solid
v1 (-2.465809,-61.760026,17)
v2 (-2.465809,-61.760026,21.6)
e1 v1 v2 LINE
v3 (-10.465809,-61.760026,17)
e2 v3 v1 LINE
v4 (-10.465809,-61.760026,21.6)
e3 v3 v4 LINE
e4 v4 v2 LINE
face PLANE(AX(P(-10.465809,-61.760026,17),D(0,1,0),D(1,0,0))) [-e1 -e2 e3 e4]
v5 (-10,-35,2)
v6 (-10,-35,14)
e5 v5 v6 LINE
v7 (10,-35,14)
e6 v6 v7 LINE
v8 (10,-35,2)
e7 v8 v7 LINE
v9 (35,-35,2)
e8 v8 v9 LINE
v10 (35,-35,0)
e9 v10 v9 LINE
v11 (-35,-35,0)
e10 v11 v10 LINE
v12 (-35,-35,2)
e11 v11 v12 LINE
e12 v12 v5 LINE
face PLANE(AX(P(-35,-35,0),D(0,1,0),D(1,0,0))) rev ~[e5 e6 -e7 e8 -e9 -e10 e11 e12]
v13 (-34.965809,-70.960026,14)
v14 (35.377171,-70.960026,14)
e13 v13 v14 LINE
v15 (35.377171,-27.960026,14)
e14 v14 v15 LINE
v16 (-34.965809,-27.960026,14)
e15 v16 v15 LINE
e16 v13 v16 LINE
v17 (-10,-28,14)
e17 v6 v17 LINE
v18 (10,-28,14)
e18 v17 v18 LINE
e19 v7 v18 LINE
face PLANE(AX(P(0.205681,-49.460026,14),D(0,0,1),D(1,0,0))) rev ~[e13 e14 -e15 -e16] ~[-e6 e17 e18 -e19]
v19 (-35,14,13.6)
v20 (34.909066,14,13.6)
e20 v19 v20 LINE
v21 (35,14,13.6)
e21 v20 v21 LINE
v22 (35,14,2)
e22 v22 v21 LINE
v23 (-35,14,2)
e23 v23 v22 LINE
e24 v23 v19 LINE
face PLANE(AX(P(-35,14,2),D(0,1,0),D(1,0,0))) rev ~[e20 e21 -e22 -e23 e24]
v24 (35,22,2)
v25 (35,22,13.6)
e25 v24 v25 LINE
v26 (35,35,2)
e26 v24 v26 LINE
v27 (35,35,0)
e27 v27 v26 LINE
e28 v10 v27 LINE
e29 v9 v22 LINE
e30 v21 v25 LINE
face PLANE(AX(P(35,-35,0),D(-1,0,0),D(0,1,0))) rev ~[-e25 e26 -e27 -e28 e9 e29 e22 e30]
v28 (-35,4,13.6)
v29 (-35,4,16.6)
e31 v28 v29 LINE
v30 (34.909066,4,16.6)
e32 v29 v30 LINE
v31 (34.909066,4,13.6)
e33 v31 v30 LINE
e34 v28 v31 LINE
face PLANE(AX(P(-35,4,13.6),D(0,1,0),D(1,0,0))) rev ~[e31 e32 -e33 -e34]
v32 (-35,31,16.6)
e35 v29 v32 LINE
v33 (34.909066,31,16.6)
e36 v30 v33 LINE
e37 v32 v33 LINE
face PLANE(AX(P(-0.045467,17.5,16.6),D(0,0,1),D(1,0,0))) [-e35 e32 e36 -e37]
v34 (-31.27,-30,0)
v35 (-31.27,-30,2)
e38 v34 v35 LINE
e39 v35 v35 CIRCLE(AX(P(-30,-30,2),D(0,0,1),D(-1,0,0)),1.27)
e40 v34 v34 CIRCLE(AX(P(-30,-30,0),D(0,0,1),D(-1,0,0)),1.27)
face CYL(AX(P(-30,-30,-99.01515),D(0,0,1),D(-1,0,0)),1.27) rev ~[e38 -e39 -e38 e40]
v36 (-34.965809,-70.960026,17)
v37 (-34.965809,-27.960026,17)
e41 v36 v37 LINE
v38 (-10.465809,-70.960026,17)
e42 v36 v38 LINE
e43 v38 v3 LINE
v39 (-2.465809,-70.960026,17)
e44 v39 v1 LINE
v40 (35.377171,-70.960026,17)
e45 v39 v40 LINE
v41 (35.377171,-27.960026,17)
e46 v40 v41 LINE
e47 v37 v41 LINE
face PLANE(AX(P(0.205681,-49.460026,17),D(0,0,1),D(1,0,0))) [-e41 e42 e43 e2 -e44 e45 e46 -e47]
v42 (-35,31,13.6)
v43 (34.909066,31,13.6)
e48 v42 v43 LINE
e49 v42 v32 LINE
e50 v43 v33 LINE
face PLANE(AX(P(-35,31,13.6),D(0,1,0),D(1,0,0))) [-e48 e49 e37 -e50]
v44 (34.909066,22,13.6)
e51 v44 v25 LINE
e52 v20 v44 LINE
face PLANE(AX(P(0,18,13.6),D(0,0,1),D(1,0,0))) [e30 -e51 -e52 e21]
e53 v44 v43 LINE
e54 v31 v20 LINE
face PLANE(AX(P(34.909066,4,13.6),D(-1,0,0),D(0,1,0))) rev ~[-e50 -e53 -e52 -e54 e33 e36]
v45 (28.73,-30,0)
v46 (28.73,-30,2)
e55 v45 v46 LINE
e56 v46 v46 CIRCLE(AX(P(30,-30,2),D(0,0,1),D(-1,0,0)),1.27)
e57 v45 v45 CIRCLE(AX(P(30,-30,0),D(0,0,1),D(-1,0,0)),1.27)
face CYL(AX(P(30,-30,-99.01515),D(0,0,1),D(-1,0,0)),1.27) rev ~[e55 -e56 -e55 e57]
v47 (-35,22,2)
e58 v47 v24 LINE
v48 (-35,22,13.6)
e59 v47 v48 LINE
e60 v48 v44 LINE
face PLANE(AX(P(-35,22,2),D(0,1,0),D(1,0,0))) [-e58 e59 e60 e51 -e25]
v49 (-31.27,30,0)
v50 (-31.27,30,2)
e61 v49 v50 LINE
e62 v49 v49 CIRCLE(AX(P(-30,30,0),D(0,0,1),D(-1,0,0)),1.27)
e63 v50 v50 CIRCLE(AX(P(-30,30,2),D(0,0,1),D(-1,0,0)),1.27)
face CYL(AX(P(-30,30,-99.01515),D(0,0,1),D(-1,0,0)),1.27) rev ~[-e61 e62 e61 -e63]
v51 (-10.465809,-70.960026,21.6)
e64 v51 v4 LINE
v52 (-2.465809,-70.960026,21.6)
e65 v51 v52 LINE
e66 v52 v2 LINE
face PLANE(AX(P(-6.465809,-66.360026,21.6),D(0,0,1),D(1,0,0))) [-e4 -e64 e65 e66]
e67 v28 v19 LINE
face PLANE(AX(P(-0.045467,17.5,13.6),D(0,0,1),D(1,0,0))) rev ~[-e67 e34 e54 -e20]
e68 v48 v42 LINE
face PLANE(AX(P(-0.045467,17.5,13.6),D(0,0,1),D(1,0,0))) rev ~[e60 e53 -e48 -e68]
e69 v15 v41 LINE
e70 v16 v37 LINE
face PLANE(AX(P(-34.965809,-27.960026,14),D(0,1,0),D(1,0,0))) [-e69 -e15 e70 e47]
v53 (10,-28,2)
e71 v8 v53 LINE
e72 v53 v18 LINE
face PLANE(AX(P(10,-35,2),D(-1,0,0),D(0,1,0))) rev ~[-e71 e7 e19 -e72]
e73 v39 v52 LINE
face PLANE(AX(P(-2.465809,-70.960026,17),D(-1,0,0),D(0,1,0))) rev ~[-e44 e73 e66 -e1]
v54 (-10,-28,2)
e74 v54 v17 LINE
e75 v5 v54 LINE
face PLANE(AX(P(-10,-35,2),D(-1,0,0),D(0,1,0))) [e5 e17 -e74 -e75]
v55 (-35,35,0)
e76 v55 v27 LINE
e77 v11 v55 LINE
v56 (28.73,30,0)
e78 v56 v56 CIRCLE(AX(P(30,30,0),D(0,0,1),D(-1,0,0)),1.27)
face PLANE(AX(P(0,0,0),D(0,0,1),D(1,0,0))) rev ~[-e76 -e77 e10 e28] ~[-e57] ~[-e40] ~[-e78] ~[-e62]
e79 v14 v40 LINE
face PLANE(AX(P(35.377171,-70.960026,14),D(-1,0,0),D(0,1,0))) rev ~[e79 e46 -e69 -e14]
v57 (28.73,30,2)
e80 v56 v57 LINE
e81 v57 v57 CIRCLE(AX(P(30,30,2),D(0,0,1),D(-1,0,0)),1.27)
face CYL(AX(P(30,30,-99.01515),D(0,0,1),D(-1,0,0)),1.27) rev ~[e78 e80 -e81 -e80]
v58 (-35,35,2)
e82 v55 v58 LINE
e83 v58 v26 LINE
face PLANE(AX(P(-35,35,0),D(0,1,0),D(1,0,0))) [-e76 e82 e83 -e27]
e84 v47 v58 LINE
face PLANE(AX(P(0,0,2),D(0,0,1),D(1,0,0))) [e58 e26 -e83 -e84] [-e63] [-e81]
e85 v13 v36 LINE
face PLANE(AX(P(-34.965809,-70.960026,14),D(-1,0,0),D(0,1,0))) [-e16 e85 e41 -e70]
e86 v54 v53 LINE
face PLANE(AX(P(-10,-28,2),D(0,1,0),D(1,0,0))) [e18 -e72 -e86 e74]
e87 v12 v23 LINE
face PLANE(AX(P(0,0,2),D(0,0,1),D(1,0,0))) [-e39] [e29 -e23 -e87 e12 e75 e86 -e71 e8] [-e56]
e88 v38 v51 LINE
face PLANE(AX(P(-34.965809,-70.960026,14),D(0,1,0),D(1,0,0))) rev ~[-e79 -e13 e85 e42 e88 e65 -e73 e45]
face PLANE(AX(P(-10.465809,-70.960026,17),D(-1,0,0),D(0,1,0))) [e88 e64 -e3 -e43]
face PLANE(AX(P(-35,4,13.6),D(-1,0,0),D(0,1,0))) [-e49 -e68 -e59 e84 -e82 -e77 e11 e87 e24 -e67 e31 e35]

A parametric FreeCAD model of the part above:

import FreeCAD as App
import Part
import Sketcher
Q = App.Units.Quantity

doc = App.newDocument("Part")
params = doc.addObject("Spreadsheet::Sheet", "Params")
for row, (alias, value) in enumerate([
    ("sketch1_width", "70 mm"),
    ("pad1_length", "2 mm"),
    ("sketch2_diameter", "2.54 mm"),
    ("hole_diameter", "2.54 mm"),
    ("sketch3_width", "70 mm"),
    ("sketch3_height", "8 mm"),
    ("pad2_length", "11.6 mm"),
    ("sketch4_height", "27 mm"),
    ("pad3_length", "3 mm"),
    ("sketch5_width", "20 mm"),
    ("sketch5_height", "7 mm"),
    ("pad4_length", "12 mm"),
    ("sketch6_height", "43 mm"),
    ("pad5_length", "3 mm"),
    ("sketch7_width", "8 mm"),
    ("sketch7_height", "9.2 mm"),
    ("pad6_length", "4.6 mm"),
], start=1):
    params.set(f"A{row}", alias)
    params.set(f"B{row}", "=" + value)
    params.setAlias(f"B{row}", alias)

body = doc.addObject("PartDesign::Body", "Body")

sketch1 = body.newObject("Sketcher::SketchObject", "Sketch")
sketch1.AttachmentSupport = (doc.getObject("XY_Plane"), [""])
sketch1.MapMode = "FlatFace"
sketch1.addGeometry([
    Part.LineSegment(App.Vector(-35, 35, 0), App.Vector(-35, -35, 0)),
    Part.LineSegment(App.Vector(-35, -35, 0), App.Vector(35, -35, 0)),
    Part.LineSegment(App.Vector(35, -35, 0), App.Vector(35, 35, 0)),
    Part.LineSegment(App.Vector(35, 35, 0), App.Vector(-35, 35, 0)),
], False)
sketch1.addConstraint([
    Sketcher.Constraint("Coincident", 0, 2, 1, 1),
    Sketcher.Constraint("Coincident", 1, 2, 2, 1),
    Sketcher.Constraint("Coincident", 2, 2, 3, 1),
    Sketcher.Constraint("Coincident", 3, 2, 0, 1),
    Sketcher.Constraint("Vertical", 0),
    Sketcher.Constraint("Horizontal", 1),
    Sketcher.Constraint("Vertical", 2),
    Sketcher.Constraint("Horizontal", 3),
    Sketcher.Constraint("Symmetric", 0, 2, 2, 2, -1, 1),
    Sketcher.Constraint("Equal", 3, 0),
    Sketcher.Constraint("DistanceX", 1, 1, 1, 2, Q("70 mm")),
])
sketch1.setExpression("Constraints[10]", "Params.sketch1_width")
pad1 = body.newObject("PartDesign::Pad", "Pad")
pad1.Profile = sketch1
pad1.setExpression("Length", "Params.pad1_length")

sketch2 = body.newObject("Sketcher::SketchObject", "Sketch001")
sketch2.AttachmentSupport = (doc.getObject("XY_Plane"), [""])
sketch2.MapMode = "FlatFace"
sketch2.addGeometry([
    Part.Circle(App.Vector(-30, -30, 0), App.Vector(0, 0, 1), 1.3),
    Part.Circle(App.Vector(30, -30, 0), App.Vector(0, 0, 1), 1.3),
    Part.Circle(App.Vector(-30, 30, 0), App.Vector(0, 0, 1), 1.3),
    Part.Circle(App.Vector(30, 30, 0), App.Vector(0, 0, 1), 1.3),
], False)
sketch2.addConstraint([
    Sketcher.Constraint("Equal", 0, 1),
    Sketcher.Constraint("Equal", 1, 2),
    Sketcher.Constraint("Equal", 2, 3),
    Sketcher.Constraint("Symmetric", 1, 3, 2, 3, -1, 1),
    Sketcher.Constraint("Symmetric", 0, 3, 3, 3, -1, 1),
    Sketcher.Constraint("Symmetric", 0, 3, 1, 3, -2),
    Sketcher.Constraint("Diameter", 0, Q("2.54 mm")),
    Sketcher.Constraint("DistanceX", 0, 3, -1, 1, Q("30 mm")),
    Sketcher.Constraint("DistanceY", 0, 3, -1, 1, Q("30 mm")),
])
sketch2.setExpression("Constraints[6]", "Params.sketch2_diameter")
doc.recompute()
hole = body.newObject("PartDesign::Hole", "Hole")
hole.Profile = sketch2
hole.ThreadType = "None"
hole.setExpression("Diameter", "Params.hole_diameter")
hole.DepthType = "ThroughAll"
hole.Reversed = True

sketch3 = body.newObject("Sketcher::SketchObject", "Sketch002")
sketch3.AttachmentSupport = (doc.getObject("XY_Plane"), [""])
sketch3.MapMode = "FlatFace"
sketch3.AttachmentOffset = App.Placement(App.Vector(0, 0, 2), App.Rotation())
sketch3.addGeometry([
    Part.LineSegment(App.Vector(-35, 22, 0), App.Vector(-35, 14, 0)),
    Part.LineSegment(App.Vector(-35, 14, 0), App.Vector(35, 14, 0)),
    Part.LineSegment(App.Vector(35, 14, 0), App.Vector(35, 22, 0)),
    Part.LineSegment(App.Vector(35, 22, 0), App.Vector(-35, 22, 0)),
], False)
sketch3.addConstraint([
    Sketcher.Constraint("Coincident", 0, 2, 1, 1),
    Sketcher.Constraint("Coincident", 1, 2, 2, 1),
    Sketcher.Constraint("Coincident", 2, 2, 3, 1),
    Sketcher.Constraint("Coincident", 3, 2, 0, 1),
    Sketcher.Constraint("Vertical", 0),
    Sketcher.Constraint("Horizontal", 1),
    Sketcher.Constraint("Vertical", 2),
    Sketcher.Constraint("Horizontal", 3),
    Sketcher.Constraint("DistanceX", 1, 1, 1, 2, Q("70 mm")),
    Sketcher.Constraint("DistanceY", 0, 2, 0, 1, Q("8 mm")),
    Sketcher.Constraint("DistanceX", 0, 2, -1, 1, Q("35 mm")),
    Sketcher.Constraint("DistanceY", -1, 1, 0, 2, Q("14 mm")),
])
sketch3.setExpression("Constraints[8]", "Params.sketch3_width")
sketch3.setExpression("Constraints[9]", "Params.sketch3_height")
pad2 = body.newObject("PartDesign::Pad", "Pad001")
pad2.Profile = sketch3
pad2.setExpression("Length", "Params.pad2_length")

sketch4 = body.newObject("Sketcher::SketchObject", "Sketch003")
sketch4.AttachmentSupport = (doc.getObject("XY_Plane"), [""])
sketch4.MapMode = "FlatFace"
sketch4.AttachmentOffset = App.Placement(App.Vector(0, 0, 13.6), App.Rotation())
sketch4.addGeometry([
    Part.LineSegment(App.Vector(-35, 31, 0), App.Vector(-35, 4, 0)),
    Part.LineSegment(App.Vector(-35, 4, 0), App.Vector(35, 4, 0)),
    Part.LineSegment(App.Vector(35, 4, 0), App.Vector(35, 31, 0)),
    Part.LineSegment(App.Vector(35, 31, 0), App.Vector(-35, 31, 0)),
], False)
sketch4.addConstraint([
    Sketcher.Constraint("Coincident", 0, 2, 1, 1),
    Sketcher.Constraint("Coincident", 1, 2, 2, 1),
    Sketcher.Constraint("Coincident", 2, 2, 3, 1),
    Sketcher.Constraint("Coincident", 3, 2, 0, 1),
    Sketcher.Constraint("Vertical", 0),
    Sketcher.Constraint("Horizontal", 1),
    Sketcher.Constraint("Vertical", 2),
    Sketcher.Constraint("Horizontal", 3),
    Sketcher.Constraint("DistanceY", 0, 2, 0, 1, Q("27 mm")),
    Sketcher.Constraint("DistanceX", 0, 2, -1, 1, Q("35 mm")),
    Sketcher.Constraint("DistanceY", -1, 1, 0, 2, Q("4 mm")),
    Sketcher.Constraint("DistanceX", 1, 1, 1, 2, Q("69.909066 mm")),
])
sketch4.setExpression("Constraints[8]", "Params.sketch4_height")
pad3 = body.newObject("PartDesign::Pad", "Pad002")
pad3.Profile = sketch4
pad3.setExpression("Length", "Params.pad3_length")

sketch5 = body.newObject("Sketcher::SketchObject", "Sketch004")
sketch5.AttachmentSupport = (doc.getObject("XY_Plane"), [""])
sketch5.MapMode = "FlatFace"
sketch5.AttachmentOffset = App.Placement(App.Vector(0, 0, 2), App.Rotation())
sketch5.addGeometry([
    Part.LineSegment(App.Vector(-10, -28, 0), App.Vector(-10, -35, 0)),
    Part.LineSegment(App.Vector(-10, -35, 0), App.Vector(10, -35, 0)),
    Part.LineSegment(App.Vector(10, -35, 0), App.Vector(10, -28, 0)),
    Part.LineSegment(App.Vector(10, -28, 0), App.Vector(-10, -28, 0)),
], False)
sketch5.addConstraint([
    Sketcher.Constraint("Coincident", 0, 2, 1, 1),
    Sketcher.Constraint("Coincident", 1, 2, 2, 1),
    Sketcher.Constraint("Coincident", 2, 2, 3, 1),
    Sketcher.Constraint("Coincident", 3, 2, 0, 1),
    Sketcher.Constraint("Vertical", 0),
    Sketcher.Constraint("Horizontal", 1),
    Sketcher.Constraint("Vertical", 2),
    Sketcher.Constraint("Horizontal", 3),
    Sketcher.Constraint("DistanceX", 1, 1, 1, 2, Q("20 mm")),
    Sketcher.Constraint("DistanceY", 0, 2, 0, 1, Q("7 mm")),
    Sketcher.Constraint("DistanceX", 0, 2, -1, 1, Q("10 mm")),
    Sketcher.Constraint("DistanceY", 0, 2, -1, 1, Q("35 mm")),
])
sketch5.setExpression("Constraints[8]", "Params.sketch5_width")
sketch5.setExpression("Constraints[9]", "Params.sketch5_height")
pad4 = body.newObject("PartDesign::Pad", "Pad003")
pad4.Profile = sketch5
pad4.setExpression("Length", "Params.pad4_length")

sketch6 = body.newObject("Sketcher::SketchObject", "Sketch005")
sketch6.AttachmentSupport = (doc.getObject("XY_Plane"), [""])
sketch6.MapMode = "FlatFace"
sketch6.AttachmentOffset = App.Placement(App.Vector(0, 0, 14), App.Rotation())
sketch6.addGeometry([
    Part.LineSegment(App.Vector(-35, -28, 0), App.Vector(-35, -71, 0)),
    Part.LineSegment(App.Vector(-35, -71, 0), App.Vector(35, -71, 0)),
    Part.LineSegment(App.Vector(35, -71, 0), App.Vector(35, -28, 0)),
    Part.LineSegment(App.Vector(35, -28, 0), App.Vector(-35, -28, 0)),
], False)
sketch6.addConstraint([
    Sketcher.Constraint("Coincident", 0, 2, 1, 1),
    Sketcher.Constraint("Coincident", 1, 2, 2, 1),
    Sketcher.Constraint("Coincident", 2, 2, 3, 1),
    Sketcher.Constraint("Coincident", 3, 2, 0, 1),
    Sketcher.Constraint("Vertical", 0),
    Sketcher.Constraint("Horizontal", 1),
    Sketcher.Constraint("Vertical", 2),
    Sketcher.Constraint("Horizontal", 3),
    Sketcher.Constraint("DistanceY", 0, 2, 0, 1, Q("43 mm")),
    Sketcher.Constraint("DistanceX", 1, 1, 1, 2, Q("70.34298 mm")),
    Sketcher.Constraint("DistanceX", 0, 2, -1, 1, Q("34.965809 mm")),
    Sketcher.Constraint("DistanceY", 0, 2, -1, 1, Q("70.960026 mm")),
])
sketch6.setExpression("Constraints[8]", "Params.sketch6_height")
pad5 = body.newObject("PartDesign::Pad", "Pad004")
pad5.Profile = sketch6
pad5.setExpression("Length", "Params.pad5_length")

sketch7 = body.newObject("Sketcher::SketchObject", "Sketch006")
sketch7.AttachmentSupport = (doc.getObject("XY_Plane"), [""])
sketch7.MapMode = "FlatFace"
sketch7.AttachmentOffset = App.Placement(App.Vector(0, 0, 17), App.Rotation())
sketch7.addGeometry([
    Part.LineSegment(App.Vector(-10, -62, 0), App.Vector(-10, -71, 0)),
    Part.LineSegment(App.Vector(-10, -71, 0), App.Vector(-2, -71, 0)),
    Part.LineSegment(App.Vector(-2, -71, 0), App.Vector(-2, -62, 0)),
    Part.LineSegment(App.Vector(-2, -62, 0), App.Vector(-10, -62, 0)),
], False)
sketch7.addConstraint([
    Sketcher.Constraint("Coincident", 0, 2, 1, 1),
    Sketcher.Constraint("Coincident", 1, 2, 2, 1),
    Sketcher.Constraint("Coincident", 2, 2, 3, 1),
    Sketcher.Constraint("Coincident", 3, 2, 0, 1),
    Sketcher.Constraint("Vertical", 0),
    Sketcher.Constraint("Horizontal", 1),
    Sketcher.Constraint("Vertical", 2),
    Sketcher.Constraint("Horizontal", 3),
    Sketcher.Constraint("DistanceX", 1, 1, 1, 2, Q("8 mm")),
    Sketcher.Constraint("DistanceY", 0, 2, 0, 1, Q("9.2 mm")),
    Sketcher.Constraint("DistanceX", 0, 2, -1, 1, Q("10.465809 mm")),
    Sketcher.Constraint("DistanceY", 0, 2, -1, 1, Q("70.960026 mm")),
])
sketch7.setExpression("Constraints[8]", "Params.sketch7_width")
sketch7.setExpression("Constraints[9]", "Params.sketch7_height")
pad6 = body.newObject("PartDesign::Pad", "Pad005")
pad6.Profile = sketch7
pad6.setExpression("Length", "Params.pad6_length")

doc.recompute()
